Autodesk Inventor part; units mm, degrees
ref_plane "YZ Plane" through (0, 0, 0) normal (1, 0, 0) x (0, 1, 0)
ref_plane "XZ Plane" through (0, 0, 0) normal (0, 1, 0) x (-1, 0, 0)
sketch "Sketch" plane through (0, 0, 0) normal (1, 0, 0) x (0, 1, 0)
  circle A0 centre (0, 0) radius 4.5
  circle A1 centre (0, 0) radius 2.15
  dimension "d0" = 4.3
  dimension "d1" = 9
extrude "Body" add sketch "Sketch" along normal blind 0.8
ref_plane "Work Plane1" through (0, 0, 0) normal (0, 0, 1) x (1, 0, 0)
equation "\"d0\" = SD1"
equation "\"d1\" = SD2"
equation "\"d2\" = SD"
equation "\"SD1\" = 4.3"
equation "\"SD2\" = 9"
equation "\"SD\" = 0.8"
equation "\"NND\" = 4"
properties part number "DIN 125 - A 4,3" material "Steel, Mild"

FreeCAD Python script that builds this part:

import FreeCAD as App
import Part
import Sketcher

V = App.Vector

doc = App.newDocument("Part")
body = doc.addObject("PartDesign::Body", "Body")

# Sketch on YZ plane
sketch1 = doc.addObject("Sketcher::SketchObject", "Sketch")
body.addObject(sketch1)
sketch1.AttachmentSupport = (doc.YZ_Plane, [""])
sketch1.MapMode = "FlatFace"
sketch1.addGeometry(Part.Circle(V(0, 0, 0), V(0, 0, 1), 4.5), False)
sketch1.addGeometry(Part.Circle(V(0, 0, 0), V(0, 0, 1), 2.1), False)
sketch1.addConstraint(Sketcher.Constraint("Coincident", 0, 3, -1, 1))
sketch1.addConstraint(Sketcher.Constraint("Coincident", 1, 3, -1, 1))
sketch1.addConstraint(Sketcher.Constraint("Diameter", 0, 9.0))
sketch1.addConstraint(Sketcher.Constraint("Diameter", 1, 4.3))
pad1 = doc.addObject("PartDesign::Pad", "Pad")
body.addObject(pad1)
pad1.Profile = sketch1
pad1.Length = 0.8

doc.recompute()
